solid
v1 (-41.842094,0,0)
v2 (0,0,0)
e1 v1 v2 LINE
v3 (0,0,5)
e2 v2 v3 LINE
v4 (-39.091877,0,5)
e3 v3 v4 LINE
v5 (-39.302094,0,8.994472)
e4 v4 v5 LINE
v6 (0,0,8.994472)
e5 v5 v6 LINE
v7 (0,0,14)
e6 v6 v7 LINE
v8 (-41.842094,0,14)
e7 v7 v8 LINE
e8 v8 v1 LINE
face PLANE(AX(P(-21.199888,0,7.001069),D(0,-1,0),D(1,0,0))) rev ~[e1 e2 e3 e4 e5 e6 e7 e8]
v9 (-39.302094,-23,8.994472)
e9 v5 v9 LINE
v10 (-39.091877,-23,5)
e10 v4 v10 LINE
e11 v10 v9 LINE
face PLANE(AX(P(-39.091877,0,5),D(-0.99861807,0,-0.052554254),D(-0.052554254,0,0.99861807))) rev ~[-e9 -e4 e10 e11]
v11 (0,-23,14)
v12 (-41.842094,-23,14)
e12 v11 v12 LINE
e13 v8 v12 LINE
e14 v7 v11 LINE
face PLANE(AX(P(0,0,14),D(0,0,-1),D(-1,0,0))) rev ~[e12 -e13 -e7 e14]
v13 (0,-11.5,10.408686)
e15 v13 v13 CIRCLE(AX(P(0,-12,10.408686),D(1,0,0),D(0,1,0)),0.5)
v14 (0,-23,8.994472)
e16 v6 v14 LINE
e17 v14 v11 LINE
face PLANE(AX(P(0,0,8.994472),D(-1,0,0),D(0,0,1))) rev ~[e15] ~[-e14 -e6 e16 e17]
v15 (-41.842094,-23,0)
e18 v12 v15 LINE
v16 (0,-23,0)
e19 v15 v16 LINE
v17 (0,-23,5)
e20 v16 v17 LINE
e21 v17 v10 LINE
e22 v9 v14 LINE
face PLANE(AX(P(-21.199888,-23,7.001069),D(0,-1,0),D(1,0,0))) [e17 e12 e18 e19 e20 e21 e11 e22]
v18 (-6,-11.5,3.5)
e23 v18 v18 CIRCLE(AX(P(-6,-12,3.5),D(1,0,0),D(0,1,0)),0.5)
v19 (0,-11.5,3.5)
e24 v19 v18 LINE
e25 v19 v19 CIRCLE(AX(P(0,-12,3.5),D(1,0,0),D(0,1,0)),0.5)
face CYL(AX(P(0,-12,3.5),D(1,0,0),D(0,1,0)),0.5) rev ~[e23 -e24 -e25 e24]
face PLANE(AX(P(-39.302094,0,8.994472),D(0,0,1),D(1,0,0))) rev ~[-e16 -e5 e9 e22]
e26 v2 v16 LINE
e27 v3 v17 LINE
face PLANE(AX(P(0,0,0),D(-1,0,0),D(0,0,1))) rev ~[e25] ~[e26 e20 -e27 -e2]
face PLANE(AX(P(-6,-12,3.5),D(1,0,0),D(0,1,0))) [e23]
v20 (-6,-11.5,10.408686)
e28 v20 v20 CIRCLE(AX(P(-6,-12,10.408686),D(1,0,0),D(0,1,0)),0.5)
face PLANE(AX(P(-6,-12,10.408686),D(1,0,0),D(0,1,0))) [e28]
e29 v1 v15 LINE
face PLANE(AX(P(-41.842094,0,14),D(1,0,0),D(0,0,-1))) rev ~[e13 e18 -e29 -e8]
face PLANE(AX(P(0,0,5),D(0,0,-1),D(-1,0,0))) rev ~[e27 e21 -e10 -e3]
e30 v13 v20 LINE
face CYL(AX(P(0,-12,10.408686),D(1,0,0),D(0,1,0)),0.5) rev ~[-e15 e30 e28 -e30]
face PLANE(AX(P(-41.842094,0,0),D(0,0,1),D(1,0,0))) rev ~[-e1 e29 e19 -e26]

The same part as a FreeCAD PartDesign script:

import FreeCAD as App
import Part
import Sketcher
from FreeCAD import Vector
Q = App.Units.Quantity

doc = App.newDocument("Part")
body = doc.addObject("PartDesign::Body", "Body")

# Sketch on XZ plane
sketch1 = doc.addObject("Sketcher::SketchObject", "Sketch")
body.addObject(sketch1)
sketch1.AttachmentSupport = (doc.XZ_Plane, [""])
sketch1.MapMode = "FlatFace"
sketch1.addGeometry([
    Part.LineSegment(Vector(0, 14, 0), Vector(-41.8, 14, 0)),  # 0
    Part.LineSegment(Vector(-41.8, 14, 0), Vector(-41.8, 0, 0)),  # 1
    Part.LineSegment(Vector(-41.8, 0, 0), Vector(0, 0, 0)),  # 2
    Part.LineSegment(Vector(0, 0, 0), Vector(0, 5, 0)),  # 3
    Part.LineSegment(Vector(0, 5, 0), Vector(-39.1, 5, 0)),  # 4
    Part.LineSegment(Vector(-39.1, 5, 0), Vector(-39.3, 9, 0)),  # 5
    Part.LineSegment(Vector(-39.3, 9, 0), Vector(0, 9, 0)),  # 6
    Part.LineSegment(Vector(0, 9, 0), Vector(0, 14, 0)),  # 7
], False)
sketch1.addConstraint([
    Sketcher.Constraint("Coincident", 0, 2, 1, 1),
    Sketcher.Constraint("Coincident", 1, 2, 2, 1),
    Sketcher.Constraint("Coincident", 2, 2, 3, 1),
    Sketcher.Constraint("Coincident", 3, 2, 4, 1),
    Sketcher.Constraint("Coincident", 4, 2, 5, 1),
    Sketcher.Constraint("Coincident", 5, 2, 6, 1),
    Sketcher.Constraint("Coincident", 6, 2, 7, 1),
    Sketcher.Constraint("Coincident", 7, 2, 0, 1),
    Sketcher.Constraint("Horizontal", 0),
    Sketcher.Constraint("Vertical", 1),
    Sketcher.Constraint("Horizontal", 2),
    Sketcher.Constraint("Vertical", 3),
    Sketcher.Constraint("Horizontal", 4),
    Sketcher.Constraint("Horizontal", 6),
    Sketcher.Constraint("Vertical", 7),
    Sketcher.Constraint("Coincident", 2, 2, -1, 1),
    Sketcher.Constraint("PointOnObject", 6, 2, -2),
    Sketcher.Constraint("DistanceY", 1, 2, 1, 1, Q("14 mm")),
    Sketcher.Constraint("DistanceY", 3, 1, 3, 2, Q("5 mm")),
    Sketcher.Constraint("Distance", 5, Q("4 mm")),
    Sketcher.Constraint("DistanceX", 0, 2, 5, 2, Q("2.54 mm")),
    Sketcher.Constraint("DistanceX", 0, 2, 0, 1, Q("41.842094 mm")),
    Sketcher.Constraint("DistanceX", 4, 2, 4, 1, Q("39.091877 mm")),
])
pad1 = doc.addObject("PartDesign::Pad", "Pad")
body.addObject(pad1)
pad1.Profile = sketch1
pad1.Length = 23

# Sketch on YZ plane
sketch2 = doc.addObject("Sketcher::SketchObject", "Sketch001")
body.addObject(sketch2)
sketch2.AttachmentSupport = (doc.YZ_Plane, [""])
sketch2.MapMode = "FlatFace"
sketch2.addGeometry([
    Part.Circle(Vector(-12, 10.4, 0), Vector(0, 0, 1), 0.5),
    Part.Circle(Vector(-12, 3.5, 0), Vector(0, 0, 1), 0.5),
], False)
sketch2.addConstraint([
    Sketcher.Constraint("Equal", 0, 1),
    Sketcher.Constraint("Vertical", 0, 3, 1, 3),
    Sketcher.Constraint("Diameter", 0, Q("1 mm")),
    Sketcher.Constraint("DistanceX", 0, 3, -1, 1, Q("12 mm")),
    Sketcher.Constraint("DistanceY", -1, 1, 1, 3, Q("3.5 mm")),
    Sketcher.Constraint("DistanceY", -1, 1, 0, 3, Q("10.408686 mm")),
])
pocket1 = doc.addObject("PartDesign::Pocket", "Pocket")
body.addObject(pocket1)
pocket1.Profile = sketch2
pocket1.Length = 6

doc.recompute()
